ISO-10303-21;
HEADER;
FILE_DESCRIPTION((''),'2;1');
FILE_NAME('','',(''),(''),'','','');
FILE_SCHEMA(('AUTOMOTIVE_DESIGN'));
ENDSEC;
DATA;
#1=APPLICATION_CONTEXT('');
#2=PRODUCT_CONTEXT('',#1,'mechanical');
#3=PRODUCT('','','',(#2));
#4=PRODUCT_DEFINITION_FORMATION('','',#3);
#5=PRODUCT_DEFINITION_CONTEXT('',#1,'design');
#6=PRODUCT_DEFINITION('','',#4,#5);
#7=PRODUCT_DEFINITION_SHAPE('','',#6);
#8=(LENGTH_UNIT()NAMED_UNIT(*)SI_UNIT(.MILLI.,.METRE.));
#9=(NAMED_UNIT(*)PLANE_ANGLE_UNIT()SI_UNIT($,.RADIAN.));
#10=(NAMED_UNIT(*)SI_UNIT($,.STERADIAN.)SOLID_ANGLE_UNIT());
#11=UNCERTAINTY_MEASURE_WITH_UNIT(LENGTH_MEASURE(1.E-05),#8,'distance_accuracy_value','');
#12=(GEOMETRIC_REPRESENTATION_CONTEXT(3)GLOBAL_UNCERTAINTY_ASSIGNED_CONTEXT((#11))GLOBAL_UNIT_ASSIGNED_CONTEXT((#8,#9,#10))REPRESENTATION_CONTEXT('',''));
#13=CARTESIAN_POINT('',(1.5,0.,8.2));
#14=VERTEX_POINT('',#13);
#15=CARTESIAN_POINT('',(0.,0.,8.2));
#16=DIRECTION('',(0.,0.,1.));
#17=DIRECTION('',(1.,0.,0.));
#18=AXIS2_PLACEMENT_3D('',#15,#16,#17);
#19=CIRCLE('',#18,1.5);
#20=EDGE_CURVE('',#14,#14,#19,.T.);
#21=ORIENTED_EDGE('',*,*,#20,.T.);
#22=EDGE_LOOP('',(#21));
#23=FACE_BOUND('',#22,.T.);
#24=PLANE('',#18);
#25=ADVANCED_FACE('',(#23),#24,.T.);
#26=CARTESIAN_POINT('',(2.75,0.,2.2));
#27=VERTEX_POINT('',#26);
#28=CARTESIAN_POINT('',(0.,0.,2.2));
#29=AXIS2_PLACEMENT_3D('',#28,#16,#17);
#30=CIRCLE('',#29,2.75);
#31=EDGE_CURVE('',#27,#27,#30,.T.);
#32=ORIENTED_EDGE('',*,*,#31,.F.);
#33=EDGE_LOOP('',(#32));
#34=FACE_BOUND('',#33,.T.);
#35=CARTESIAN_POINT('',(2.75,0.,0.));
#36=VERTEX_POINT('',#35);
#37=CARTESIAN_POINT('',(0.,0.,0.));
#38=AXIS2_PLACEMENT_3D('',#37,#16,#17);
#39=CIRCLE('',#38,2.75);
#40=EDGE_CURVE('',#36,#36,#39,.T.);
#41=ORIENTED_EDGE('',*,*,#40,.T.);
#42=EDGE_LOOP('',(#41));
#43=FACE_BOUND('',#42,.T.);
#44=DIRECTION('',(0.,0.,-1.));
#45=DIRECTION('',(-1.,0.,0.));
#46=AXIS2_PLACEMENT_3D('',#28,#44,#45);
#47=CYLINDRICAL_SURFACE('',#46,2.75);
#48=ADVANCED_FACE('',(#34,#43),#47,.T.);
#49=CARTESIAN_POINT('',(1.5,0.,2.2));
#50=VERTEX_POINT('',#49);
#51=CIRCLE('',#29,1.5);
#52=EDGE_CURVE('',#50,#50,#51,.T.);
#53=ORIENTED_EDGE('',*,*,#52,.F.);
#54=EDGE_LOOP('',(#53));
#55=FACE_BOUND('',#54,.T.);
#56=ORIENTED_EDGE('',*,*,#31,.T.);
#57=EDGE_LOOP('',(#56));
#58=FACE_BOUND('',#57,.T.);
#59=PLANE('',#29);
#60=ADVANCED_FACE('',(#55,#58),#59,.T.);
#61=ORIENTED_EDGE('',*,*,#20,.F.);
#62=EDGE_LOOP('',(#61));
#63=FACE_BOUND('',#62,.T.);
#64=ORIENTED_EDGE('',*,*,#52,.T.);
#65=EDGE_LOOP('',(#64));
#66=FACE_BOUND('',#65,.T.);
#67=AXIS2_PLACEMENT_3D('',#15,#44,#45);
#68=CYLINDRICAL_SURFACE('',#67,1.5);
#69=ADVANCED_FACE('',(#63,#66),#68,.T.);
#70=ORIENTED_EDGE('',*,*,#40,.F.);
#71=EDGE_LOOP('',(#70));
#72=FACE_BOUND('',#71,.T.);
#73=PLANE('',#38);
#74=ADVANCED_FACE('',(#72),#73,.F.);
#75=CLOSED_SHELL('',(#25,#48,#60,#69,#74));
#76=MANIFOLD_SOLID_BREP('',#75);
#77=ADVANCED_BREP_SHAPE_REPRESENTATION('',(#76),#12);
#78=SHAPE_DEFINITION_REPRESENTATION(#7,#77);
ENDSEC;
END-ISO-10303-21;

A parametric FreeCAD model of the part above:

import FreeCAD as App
import Part
import Sketcher
from FreeCAD import Vector
Q = App.Units.Quantity

doc = App.newDocument("Part")
params = doc.addObject("Spreadsheet::Sheet", "Params")
for row, (alias, value) in enumerate([
    ("sketch1_diameter", "5.5 mm"),
    ("pad1_length", "2.2 mm"),
    ("sketch2_diameter", "3 mm"),
    ("pad2_length", "6 mm"),
], start=1):
    params.set(f"A{row}", alias)
    params.set(f"B{row}", "=" + value)
    params.setAlias(f"B{row}", alias)

body = doc.addObject("PartDesign::Body", "Body")

# Sketch on XY plane
sketch1 = body.newObject("Sketcher::SketchObject", "Sketch")
sketch1.AttachmentSupport = (doc.getObject("XY_Plane"), [""])
sketch1.MapMode = "FlatFace"
sketch1.addGeometry(Part.Circle(Vector(0, 0, 0), Vector(0, 0, 1), 2.8), False)
sketch1.addConstraint([
    Sketcher.Constraint("Coincident", 0, 3, -1, 1),
    Sketcher.Constraint("Diameter", 0, Q("5.5 mm")),
])
sketch1.setExpression("Constraints[1]", "Params.sketch1_diameter")
pad1 = body.newObject("PartDesign::Pad", "Pad")
pad1.Profile = sketch1
pad1.setExpression("Length", "Params.pad1_length")

# Sketch on XY plane
sketch2 = body.newObject("Sketcher::SketchObject", "Sketch001")
sketch2.AttachmentSupport = (doc.getObject("XY_Plane"), [""])
sketch2.MapMode = "FlatFace"
sketch2.AttachmentOffset = App.Placement(Vector(0, 0, 2.2), App.Rotation())
sketch2.addGeometry(Part.Circle(Vector(0, 0, 0), Vector(0, 0, 1), 1.5), False)
sketch2.addConstraint([
    Sketcher.Constraint("Coincident", 0, 3, -1, 1),
    Sketcher.Constraint("Diameter", 0, Q("3 mm")),
])
sketch2.setExpression("Constraints[1]", "Params.sketch2_diameter")
pad2 = body.newObject("PartDesign::Pad", "Pad001")
pad2.Profile = sketch2
pad2.setExpression("Length", "Params.pad2_length")

doc.recompute()
